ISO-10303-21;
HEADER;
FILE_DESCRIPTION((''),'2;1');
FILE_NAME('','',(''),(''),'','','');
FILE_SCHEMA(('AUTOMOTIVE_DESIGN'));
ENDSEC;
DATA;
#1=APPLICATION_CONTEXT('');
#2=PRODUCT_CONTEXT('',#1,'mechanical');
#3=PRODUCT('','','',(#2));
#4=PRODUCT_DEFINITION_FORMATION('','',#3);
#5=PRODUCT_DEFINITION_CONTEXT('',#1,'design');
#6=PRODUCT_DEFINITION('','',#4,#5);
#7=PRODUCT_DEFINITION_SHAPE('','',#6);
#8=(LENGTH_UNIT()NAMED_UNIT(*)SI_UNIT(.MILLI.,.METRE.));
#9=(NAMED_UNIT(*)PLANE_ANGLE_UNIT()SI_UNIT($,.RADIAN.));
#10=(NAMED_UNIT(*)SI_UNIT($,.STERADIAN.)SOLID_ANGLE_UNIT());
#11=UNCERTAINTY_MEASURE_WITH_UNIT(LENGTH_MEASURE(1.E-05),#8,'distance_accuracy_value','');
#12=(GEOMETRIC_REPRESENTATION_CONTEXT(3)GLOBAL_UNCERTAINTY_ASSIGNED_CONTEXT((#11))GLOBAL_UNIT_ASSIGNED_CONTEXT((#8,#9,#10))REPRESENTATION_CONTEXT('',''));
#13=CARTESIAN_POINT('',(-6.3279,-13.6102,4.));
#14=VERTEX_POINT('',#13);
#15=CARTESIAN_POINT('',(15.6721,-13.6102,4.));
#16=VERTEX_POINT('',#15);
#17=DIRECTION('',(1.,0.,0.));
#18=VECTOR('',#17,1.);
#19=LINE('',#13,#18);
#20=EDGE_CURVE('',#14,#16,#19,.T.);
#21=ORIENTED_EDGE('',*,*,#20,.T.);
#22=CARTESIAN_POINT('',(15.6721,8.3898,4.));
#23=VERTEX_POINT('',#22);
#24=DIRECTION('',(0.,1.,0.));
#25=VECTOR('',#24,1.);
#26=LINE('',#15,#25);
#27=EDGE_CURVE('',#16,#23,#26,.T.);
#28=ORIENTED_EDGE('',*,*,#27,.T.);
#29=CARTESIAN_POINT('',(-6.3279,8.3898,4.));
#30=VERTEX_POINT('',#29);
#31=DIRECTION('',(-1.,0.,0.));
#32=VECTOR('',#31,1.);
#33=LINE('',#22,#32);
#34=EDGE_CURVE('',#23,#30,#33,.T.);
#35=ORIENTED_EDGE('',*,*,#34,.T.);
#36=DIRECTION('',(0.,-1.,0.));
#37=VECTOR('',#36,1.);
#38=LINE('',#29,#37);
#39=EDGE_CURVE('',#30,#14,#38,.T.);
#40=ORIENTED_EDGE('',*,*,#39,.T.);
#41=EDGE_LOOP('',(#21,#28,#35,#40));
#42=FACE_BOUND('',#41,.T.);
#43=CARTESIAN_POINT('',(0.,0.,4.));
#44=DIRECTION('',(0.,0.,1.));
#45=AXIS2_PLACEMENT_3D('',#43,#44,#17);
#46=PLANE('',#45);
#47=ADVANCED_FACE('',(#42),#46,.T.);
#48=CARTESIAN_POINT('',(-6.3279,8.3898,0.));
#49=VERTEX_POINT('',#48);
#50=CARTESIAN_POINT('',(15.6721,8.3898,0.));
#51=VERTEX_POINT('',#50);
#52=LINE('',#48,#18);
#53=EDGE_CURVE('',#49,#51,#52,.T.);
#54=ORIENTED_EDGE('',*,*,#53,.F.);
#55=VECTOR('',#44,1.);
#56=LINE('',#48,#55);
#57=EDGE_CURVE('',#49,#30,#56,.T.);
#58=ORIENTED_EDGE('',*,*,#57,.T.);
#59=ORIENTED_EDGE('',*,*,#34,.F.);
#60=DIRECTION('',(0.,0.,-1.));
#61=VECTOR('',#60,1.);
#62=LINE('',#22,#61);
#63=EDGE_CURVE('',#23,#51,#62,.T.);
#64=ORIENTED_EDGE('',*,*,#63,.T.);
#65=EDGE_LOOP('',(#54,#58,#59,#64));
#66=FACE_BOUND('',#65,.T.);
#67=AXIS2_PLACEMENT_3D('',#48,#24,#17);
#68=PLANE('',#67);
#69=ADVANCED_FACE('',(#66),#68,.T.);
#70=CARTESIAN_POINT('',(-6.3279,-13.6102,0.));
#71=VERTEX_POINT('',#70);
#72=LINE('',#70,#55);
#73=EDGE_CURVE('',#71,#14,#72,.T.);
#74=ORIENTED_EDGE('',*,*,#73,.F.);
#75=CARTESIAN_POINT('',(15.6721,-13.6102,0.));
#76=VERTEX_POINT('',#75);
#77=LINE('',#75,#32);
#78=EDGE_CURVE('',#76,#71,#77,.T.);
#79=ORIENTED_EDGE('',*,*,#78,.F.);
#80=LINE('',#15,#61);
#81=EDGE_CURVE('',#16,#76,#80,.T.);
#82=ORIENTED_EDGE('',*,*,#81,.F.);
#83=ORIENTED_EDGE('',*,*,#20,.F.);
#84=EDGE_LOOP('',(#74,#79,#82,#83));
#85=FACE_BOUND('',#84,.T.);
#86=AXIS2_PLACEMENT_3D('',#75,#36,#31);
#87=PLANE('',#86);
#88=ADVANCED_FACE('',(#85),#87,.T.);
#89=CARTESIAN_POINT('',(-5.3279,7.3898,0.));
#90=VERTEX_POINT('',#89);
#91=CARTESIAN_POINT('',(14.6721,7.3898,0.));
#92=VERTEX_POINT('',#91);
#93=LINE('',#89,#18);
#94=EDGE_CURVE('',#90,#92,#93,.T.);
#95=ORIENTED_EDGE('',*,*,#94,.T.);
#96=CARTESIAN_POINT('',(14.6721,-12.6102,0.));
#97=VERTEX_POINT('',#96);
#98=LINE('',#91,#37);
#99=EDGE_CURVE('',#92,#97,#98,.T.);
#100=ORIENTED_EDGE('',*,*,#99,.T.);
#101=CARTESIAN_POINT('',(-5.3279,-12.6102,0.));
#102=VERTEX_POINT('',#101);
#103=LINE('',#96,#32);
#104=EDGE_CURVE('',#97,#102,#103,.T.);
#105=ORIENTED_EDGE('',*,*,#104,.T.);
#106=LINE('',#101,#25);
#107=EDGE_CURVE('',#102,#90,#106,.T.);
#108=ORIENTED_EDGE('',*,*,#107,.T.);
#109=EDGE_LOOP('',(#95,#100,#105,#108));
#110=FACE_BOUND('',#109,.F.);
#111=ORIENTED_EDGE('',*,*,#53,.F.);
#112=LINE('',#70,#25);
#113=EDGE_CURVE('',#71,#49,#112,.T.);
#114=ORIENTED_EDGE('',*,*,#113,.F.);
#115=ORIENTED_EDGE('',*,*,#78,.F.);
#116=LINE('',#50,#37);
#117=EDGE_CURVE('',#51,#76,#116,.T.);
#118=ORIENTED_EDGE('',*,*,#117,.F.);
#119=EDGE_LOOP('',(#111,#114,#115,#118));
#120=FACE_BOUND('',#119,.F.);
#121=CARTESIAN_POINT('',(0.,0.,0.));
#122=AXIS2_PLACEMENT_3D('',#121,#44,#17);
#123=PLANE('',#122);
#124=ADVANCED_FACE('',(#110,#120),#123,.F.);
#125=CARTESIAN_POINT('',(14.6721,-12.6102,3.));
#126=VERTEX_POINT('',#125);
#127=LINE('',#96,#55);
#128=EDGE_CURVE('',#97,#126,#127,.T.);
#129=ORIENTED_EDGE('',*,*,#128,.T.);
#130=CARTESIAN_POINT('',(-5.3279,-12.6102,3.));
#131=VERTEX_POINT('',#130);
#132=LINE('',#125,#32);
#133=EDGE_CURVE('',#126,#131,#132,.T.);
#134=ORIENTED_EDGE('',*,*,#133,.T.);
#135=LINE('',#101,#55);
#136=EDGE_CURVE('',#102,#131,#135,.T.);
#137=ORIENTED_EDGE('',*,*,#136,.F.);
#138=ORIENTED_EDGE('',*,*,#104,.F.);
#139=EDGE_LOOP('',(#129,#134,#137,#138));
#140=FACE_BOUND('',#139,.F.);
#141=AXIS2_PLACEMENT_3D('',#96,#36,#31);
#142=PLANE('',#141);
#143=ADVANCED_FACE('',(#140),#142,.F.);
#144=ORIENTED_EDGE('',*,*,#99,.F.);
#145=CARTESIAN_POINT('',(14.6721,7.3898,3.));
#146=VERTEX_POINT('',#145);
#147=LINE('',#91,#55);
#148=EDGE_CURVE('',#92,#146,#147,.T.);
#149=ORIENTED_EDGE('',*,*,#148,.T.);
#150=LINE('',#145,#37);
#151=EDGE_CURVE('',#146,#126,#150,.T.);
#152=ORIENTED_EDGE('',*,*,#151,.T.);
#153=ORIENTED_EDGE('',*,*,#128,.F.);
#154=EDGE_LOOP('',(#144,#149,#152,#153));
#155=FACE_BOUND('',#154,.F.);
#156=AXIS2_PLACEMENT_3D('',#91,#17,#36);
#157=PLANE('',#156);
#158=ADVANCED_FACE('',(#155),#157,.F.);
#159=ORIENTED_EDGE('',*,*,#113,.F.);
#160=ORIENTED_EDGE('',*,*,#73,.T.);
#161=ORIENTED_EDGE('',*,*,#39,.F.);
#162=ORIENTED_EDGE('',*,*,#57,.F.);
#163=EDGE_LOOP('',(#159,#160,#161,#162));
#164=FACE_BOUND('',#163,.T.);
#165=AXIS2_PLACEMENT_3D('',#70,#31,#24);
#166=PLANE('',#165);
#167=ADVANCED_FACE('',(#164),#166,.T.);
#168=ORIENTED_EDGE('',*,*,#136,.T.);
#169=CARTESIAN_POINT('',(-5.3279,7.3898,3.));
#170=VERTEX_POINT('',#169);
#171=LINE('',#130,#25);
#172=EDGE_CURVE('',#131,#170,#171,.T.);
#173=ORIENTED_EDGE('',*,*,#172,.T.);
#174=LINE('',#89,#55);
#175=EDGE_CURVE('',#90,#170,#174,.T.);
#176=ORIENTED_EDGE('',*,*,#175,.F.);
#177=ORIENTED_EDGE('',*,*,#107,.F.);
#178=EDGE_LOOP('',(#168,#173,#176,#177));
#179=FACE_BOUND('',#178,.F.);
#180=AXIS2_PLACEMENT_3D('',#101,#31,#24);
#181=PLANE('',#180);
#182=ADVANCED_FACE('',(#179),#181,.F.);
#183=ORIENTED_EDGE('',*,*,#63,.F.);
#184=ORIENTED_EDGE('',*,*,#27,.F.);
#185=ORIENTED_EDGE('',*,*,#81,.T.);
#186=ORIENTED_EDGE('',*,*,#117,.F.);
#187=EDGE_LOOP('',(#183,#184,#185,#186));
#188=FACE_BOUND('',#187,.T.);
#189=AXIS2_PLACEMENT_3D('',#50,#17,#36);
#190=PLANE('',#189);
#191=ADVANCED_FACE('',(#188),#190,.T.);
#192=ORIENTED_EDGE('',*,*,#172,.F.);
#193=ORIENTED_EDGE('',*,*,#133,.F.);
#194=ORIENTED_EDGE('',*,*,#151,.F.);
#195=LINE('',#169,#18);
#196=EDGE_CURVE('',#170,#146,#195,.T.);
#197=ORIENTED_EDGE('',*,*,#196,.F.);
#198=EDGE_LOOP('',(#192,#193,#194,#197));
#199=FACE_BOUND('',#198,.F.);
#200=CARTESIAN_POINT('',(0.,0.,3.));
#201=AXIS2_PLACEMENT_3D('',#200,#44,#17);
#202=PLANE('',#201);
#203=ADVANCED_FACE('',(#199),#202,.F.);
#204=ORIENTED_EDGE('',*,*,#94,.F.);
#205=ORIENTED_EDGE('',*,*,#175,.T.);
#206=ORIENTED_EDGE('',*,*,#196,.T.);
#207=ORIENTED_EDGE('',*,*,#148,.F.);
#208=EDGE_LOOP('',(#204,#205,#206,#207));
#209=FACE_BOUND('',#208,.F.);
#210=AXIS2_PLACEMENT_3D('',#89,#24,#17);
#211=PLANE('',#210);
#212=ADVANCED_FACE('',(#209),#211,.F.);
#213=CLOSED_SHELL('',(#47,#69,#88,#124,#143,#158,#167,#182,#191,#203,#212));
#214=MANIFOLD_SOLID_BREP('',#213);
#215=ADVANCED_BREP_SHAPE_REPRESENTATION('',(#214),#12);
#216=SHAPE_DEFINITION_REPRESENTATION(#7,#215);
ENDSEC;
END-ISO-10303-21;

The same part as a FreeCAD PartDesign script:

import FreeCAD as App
import Part
import Sketcher

V = App.Vector


def add_polygon(sketch, points):
    """Adds a closed chain of lines whose ends are joined by coincident constraints."""
    first, n = sketch.GeometryCount, len(points)
    for a, b in zip(points, points[1:] + points[:1]):
        sketch.addGeometry(Part.LineSegment(App.Vector(*a, 0), App.Vector(*b, 0)), False)
    for i in range(n):
        sketch.addConstraint(Sketcher.Constraint("Coincident", first + i, 2, first + (i + 1) % n, 1))

doc = App.newDocument("Part")
body = doc.addObject("PartDesign::Body", "Body")

# Sketch on XY plane
sketch1 = body.newObject("Sketcher::SketchObject", "Sketch")
sketch1.AttachmentSupport = (doc.getObject("XY_Plane"), [""])
sketch1.MapMode = "FlatFace"
add_polygon(sketch1, [(16, 8), (-6, 8), (-6, -14), (16, -14)])  # lines 0-3
add_polygon(sketch1, [(-5, -13), (-5, 7), (15, 7), (15, -13)])  # lines 4-7
sketch1.addConstraint(Sketcher.Constraint("Horizontal", 0))
sketch1.addConstraint(Sketcher.Constraint("Vertical", 1))
sketch1.addConstraint(Sketcher.Constraint("Horizontal", 2))
sketch1.addConstraint(Sketcher.Constraint("Vertical", 3))
sketch1.addConstraint(Sketcher.Constraint("Vertical", 4))
sketch1.addConstraint(Sketcher.Constraint("Horizontal", 5))
sketch1.addConstraint(Sketcher.Constraint("Vertical", 6))
sketch1.addConstraint(Sketcher.Constraint("Horizontal", 7))
sketch1.addConstraint(Sketcher.Constraint("Equal", 2, 1))
sketch1.addConstraint(Sketcher.Constraint("Equal", 7, 4))
sketch1.addConstraint(Sketcher.Constraint("DistanceX", 0, 2, 0, 1, 22.0))
sketch1.addConstraint(Sketcher.Constraint("DistanceX", 5, 1, 5, 2, 20.0))
sketch1.addConstraint(Sketcher.Constraint("DistanceX", 0, 2, 4, 2, 1.0))
sketch1.addConstraint(Sketcher.Constraint("DistanceY", 4, 2, 0, 2, 1.0))
sketch1.addConstraint(Sketcher.Constraint("DistanceX", 0, 2, -1, 1, 6.328))
sketch1.addConstraint(Sketcher.Constraint("DistanceY", -1, 1, 0, 2, 8.3898))
pad1 = body.newObject("PartDesign::Pad", "Pad")
pad1.Profile = sketch1
pad1.Length = 3

# Sketch on XY plane
sketch2 = body.newObject("Sketcher::SketchObject", "Sketch001")
sketch2.AttachmentSupport = (doc.getObject("XY_Plane"), [""])
sketch2.MapMode = "FlatFace"
sketch2.AttachmentOffset = App.Placement(V(0, 0, 3), App.Rotation())
add_polygon(sketch2, [(16, -14), (16, 8), (-6, 8), (-6, -14)])  # lines 0-3
sketch2.addConstraint(Sketcher.Constraint("Vertical", 0))
sketch2.addConstraint(Sketcher.Constraint("Horizontal", 1))
sketch2.addConstraint(Sketcher.Constraint("Vertical", 2))
sketch2.addConstraint(Sketcher.Constraint("Horizontal", 3))
sketch2.addConstraint(Sketcher.Constraint("Equal", 3, 0))
sketch2.addConstraint(Sketcher.Constraint("DistanceX", 1, 2, 1, 1, 22.0))
sketch2.addConstraint(Sketcher.Constraint("DistanceX", -1, 1, 0, 2, 15.672))
sketch2.addConstraint(Sketcher.Constraint("DistanceY", -1, 1, 0, 2, 8.3898))
pad2 = body.newObject("PartDesign::Pad", "Pad001")
pad2.Profile = sketch2
pad2.Length = 1

doc.recompute()
